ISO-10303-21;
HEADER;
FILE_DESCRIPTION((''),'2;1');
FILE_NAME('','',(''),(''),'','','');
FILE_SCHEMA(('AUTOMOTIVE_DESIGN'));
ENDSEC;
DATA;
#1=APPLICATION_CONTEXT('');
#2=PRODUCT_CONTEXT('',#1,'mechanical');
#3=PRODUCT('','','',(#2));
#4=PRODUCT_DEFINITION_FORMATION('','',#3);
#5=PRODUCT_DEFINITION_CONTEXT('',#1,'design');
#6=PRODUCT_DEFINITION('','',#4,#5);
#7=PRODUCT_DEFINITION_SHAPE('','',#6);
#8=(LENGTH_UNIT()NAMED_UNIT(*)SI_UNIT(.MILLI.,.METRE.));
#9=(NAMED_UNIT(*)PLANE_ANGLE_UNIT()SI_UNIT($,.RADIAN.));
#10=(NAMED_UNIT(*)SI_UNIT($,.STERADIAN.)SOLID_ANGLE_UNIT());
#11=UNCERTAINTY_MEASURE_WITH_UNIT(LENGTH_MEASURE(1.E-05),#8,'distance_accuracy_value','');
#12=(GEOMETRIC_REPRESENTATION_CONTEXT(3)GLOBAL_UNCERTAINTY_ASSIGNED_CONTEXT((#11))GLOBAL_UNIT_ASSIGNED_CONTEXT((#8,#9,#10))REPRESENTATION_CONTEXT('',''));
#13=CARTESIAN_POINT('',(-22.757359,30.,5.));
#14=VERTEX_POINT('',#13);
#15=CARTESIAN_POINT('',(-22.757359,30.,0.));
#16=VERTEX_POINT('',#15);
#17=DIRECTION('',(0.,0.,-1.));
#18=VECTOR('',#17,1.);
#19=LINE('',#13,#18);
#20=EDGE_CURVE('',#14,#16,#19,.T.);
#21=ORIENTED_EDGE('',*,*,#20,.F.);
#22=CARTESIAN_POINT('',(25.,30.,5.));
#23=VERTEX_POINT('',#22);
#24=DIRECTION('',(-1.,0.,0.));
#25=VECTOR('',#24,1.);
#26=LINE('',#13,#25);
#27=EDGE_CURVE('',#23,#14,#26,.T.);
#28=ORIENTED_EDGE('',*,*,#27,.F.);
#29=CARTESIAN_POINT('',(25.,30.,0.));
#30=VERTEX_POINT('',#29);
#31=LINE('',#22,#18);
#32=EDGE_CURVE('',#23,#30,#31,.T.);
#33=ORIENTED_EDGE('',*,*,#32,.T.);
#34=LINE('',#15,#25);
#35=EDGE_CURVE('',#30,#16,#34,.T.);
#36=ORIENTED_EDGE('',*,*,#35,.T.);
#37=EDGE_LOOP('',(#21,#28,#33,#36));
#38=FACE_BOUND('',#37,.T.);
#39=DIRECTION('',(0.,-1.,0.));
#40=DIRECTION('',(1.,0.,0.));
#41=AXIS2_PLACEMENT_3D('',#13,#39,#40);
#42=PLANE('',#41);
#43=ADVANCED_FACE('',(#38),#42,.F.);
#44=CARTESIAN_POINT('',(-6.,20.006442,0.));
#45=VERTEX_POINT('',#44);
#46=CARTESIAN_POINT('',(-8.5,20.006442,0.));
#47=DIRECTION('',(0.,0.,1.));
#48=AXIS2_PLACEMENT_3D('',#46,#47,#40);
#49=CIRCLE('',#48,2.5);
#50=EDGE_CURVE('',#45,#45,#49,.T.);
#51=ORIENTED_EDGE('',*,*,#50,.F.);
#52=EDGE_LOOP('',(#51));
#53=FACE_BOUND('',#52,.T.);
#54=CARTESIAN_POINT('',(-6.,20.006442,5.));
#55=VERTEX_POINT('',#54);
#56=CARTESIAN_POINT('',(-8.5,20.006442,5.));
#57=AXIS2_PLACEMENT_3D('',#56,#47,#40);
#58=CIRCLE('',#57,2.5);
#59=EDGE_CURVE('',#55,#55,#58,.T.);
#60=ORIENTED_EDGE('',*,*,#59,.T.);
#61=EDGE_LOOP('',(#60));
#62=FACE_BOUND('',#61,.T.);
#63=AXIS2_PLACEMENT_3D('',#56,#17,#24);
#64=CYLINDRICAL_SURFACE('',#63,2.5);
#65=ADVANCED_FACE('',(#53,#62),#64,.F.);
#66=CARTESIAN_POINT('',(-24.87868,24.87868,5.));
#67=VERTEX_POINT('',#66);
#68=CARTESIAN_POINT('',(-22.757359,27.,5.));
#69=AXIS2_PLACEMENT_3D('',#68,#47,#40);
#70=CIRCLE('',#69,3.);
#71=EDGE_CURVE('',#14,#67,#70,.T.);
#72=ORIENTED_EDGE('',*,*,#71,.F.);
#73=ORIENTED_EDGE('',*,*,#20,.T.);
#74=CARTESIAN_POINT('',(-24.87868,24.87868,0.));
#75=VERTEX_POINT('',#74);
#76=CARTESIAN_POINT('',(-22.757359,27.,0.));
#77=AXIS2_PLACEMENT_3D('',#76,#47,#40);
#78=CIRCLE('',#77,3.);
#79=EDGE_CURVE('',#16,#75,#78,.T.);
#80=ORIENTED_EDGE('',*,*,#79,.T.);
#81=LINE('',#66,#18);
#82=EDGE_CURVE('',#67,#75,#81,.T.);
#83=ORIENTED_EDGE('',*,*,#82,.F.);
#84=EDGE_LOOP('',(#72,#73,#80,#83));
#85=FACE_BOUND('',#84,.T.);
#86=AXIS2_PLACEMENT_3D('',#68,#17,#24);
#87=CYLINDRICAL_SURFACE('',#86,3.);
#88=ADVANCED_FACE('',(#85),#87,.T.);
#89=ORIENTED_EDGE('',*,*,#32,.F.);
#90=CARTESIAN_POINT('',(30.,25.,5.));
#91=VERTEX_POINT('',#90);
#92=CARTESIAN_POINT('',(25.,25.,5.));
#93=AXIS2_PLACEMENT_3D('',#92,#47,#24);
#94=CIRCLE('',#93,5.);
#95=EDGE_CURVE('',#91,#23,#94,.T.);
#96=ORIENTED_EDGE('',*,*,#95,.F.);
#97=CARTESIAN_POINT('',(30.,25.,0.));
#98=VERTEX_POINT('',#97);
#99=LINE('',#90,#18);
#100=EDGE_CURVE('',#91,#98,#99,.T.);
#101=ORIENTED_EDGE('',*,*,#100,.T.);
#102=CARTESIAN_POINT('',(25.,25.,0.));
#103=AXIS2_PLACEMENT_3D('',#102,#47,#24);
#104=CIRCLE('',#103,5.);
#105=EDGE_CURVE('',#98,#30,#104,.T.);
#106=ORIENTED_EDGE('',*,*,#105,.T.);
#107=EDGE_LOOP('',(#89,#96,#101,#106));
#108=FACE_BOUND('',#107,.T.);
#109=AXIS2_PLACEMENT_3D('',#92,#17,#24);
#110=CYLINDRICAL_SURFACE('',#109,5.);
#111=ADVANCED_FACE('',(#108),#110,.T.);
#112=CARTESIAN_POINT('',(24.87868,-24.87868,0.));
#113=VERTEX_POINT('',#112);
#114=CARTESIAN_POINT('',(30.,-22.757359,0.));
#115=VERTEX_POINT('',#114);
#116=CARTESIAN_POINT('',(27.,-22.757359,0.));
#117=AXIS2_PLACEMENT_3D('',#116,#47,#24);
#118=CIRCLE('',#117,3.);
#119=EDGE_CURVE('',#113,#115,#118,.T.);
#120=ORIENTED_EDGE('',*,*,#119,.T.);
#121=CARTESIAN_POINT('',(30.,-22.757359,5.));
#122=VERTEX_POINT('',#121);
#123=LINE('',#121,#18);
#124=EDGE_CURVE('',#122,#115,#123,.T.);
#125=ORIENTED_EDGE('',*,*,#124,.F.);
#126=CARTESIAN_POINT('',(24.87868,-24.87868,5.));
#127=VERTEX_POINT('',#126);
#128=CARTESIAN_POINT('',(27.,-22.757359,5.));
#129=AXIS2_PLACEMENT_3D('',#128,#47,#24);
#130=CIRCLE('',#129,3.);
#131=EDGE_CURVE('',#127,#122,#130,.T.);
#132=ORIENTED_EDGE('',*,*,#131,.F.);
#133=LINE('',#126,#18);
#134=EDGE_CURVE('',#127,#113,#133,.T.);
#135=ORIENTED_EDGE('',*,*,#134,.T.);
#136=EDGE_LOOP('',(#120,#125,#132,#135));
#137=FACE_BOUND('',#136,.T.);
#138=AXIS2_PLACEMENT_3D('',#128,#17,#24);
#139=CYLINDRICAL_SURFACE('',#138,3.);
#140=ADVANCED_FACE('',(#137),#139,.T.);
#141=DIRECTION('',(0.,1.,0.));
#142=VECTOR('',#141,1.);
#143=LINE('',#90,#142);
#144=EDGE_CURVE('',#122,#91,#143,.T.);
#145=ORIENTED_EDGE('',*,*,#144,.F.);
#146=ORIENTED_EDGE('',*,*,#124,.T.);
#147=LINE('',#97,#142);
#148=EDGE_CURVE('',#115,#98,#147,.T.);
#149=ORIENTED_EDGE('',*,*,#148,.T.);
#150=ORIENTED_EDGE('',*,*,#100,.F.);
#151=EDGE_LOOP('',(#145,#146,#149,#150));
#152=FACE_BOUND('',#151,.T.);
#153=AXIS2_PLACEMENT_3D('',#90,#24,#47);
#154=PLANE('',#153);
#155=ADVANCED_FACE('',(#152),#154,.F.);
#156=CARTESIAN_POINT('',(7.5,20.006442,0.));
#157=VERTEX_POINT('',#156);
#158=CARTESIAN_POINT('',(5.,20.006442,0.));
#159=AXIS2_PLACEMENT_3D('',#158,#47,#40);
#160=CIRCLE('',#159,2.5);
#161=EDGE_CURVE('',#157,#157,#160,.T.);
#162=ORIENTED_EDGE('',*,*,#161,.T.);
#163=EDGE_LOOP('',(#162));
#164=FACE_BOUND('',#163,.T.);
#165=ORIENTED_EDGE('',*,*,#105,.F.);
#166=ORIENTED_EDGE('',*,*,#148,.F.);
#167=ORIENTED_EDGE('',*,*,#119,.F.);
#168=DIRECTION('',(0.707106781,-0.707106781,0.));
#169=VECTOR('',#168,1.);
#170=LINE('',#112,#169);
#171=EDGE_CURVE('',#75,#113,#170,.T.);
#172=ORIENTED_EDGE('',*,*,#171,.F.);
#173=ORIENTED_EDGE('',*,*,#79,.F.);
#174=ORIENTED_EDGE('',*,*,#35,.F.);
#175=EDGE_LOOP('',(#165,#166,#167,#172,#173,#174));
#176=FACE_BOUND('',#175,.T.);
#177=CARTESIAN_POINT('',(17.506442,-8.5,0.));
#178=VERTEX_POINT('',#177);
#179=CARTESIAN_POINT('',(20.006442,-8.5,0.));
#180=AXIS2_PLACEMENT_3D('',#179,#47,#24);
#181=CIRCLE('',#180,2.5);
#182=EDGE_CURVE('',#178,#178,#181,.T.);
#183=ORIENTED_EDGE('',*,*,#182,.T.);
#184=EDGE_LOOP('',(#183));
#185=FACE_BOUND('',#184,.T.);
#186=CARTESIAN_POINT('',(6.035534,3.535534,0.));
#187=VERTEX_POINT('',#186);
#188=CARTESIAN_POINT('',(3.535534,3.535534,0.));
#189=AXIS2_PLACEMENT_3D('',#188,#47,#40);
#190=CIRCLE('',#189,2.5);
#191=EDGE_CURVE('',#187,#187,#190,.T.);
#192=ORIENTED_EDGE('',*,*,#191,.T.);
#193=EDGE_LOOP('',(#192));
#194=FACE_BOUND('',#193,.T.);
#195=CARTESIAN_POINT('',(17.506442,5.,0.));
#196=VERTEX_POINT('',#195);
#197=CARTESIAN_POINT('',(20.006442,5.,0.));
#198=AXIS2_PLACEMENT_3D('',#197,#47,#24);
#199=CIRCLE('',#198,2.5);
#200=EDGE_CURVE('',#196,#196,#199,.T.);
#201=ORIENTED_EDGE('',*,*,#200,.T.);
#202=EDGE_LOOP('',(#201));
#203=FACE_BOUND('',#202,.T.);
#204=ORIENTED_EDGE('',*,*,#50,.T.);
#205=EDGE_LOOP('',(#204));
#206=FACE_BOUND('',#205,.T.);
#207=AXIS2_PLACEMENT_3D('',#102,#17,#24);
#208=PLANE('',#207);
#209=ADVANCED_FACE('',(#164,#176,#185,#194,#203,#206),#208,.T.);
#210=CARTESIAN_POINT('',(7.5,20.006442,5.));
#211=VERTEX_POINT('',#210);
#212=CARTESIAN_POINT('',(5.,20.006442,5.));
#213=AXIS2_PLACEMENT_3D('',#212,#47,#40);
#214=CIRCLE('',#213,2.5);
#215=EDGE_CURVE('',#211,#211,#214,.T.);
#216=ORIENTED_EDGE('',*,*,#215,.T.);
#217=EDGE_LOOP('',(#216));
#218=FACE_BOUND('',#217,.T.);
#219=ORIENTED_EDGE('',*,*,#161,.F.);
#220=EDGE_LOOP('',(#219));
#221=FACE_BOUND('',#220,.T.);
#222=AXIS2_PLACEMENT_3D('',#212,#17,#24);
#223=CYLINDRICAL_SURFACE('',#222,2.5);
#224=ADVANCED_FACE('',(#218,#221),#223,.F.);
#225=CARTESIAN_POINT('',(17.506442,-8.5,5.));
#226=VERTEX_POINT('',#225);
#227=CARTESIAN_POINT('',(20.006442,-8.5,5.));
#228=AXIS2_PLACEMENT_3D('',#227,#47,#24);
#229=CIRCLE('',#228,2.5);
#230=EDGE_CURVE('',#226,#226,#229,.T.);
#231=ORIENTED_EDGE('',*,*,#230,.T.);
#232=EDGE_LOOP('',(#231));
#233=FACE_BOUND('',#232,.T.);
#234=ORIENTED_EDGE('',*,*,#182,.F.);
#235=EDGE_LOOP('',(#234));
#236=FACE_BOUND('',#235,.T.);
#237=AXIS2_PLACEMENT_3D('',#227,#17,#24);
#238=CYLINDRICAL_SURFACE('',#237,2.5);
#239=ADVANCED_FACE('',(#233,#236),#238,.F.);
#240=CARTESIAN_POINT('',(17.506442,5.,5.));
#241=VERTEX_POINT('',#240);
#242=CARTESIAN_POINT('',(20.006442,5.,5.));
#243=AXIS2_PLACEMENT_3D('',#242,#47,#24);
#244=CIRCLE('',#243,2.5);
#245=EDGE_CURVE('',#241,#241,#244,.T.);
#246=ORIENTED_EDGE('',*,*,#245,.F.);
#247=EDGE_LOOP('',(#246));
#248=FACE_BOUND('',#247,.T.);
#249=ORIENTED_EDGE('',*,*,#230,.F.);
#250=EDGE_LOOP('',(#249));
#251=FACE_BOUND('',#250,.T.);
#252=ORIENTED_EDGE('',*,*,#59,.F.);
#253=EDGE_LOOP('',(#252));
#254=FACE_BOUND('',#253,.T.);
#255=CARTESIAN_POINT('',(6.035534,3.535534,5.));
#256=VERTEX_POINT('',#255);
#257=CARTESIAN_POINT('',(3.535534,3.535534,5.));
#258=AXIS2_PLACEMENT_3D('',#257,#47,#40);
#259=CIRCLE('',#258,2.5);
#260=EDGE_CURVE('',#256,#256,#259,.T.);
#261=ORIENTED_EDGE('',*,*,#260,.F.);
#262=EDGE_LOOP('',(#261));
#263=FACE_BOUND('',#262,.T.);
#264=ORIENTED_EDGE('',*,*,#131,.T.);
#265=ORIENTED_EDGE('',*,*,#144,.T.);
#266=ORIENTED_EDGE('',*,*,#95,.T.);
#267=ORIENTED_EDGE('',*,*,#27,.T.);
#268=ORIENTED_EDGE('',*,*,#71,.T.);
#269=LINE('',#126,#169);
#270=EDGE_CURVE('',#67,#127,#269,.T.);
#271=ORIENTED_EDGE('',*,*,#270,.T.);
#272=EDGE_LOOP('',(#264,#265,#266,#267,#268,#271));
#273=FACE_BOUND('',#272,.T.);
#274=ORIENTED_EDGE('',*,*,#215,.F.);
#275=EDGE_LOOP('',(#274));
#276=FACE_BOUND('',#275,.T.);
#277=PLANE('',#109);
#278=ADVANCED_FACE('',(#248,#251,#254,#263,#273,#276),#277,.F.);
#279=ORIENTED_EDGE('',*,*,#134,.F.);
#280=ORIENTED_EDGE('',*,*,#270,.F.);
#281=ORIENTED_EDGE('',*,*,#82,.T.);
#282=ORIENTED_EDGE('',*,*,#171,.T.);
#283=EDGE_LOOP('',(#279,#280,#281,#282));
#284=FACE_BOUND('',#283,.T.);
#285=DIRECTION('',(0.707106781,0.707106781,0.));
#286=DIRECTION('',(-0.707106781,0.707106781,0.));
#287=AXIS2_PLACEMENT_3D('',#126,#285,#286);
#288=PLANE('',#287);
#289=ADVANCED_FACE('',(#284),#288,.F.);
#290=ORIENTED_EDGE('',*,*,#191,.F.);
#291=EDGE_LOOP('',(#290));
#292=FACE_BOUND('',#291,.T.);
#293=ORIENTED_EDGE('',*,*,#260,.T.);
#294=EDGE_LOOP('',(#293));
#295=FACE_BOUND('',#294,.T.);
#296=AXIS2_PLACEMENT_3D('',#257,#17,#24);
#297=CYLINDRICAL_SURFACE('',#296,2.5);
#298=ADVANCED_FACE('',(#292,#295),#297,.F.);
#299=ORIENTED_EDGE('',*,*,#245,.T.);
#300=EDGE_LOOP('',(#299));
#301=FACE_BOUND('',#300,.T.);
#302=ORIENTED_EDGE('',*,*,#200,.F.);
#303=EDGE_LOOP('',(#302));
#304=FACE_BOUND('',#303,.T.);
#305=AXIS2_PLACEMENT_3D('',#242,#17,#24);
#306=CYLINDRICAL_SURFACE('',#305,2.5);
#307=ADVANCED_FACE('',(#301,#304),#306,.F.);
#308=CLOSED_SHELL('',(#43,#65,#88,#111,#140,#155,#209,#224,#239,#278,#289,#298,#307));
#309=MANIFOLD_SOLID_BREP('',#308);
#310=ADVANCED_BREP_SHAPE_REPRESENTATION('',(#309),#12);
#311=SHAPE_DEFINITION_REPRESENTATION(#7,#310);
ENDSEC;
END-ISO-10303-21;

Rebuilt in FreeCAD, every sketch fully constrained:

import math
import FreeCAD as App
import Part
import Sketcher

doc = App.newDocument("Part")
body = doc.addObject("PartDesign::Body", "Body")

# Sketch on XY plane
sketch1 = body.newObject("Sketcher::SketchObject", "Sketch")
sketch1.AttachmentSupport = (doc.getObject("XY_Plane"), [""])
sketch1.MapMode = "FlatFace"
sketch1.addGeometry([
    Part.LineSegment(App.Vector(25, 30, 0), App.Vector(-22.8, 30, 0)),  # 0
    Part.ArcOfCircle(Part.Circle(App.Vector(-22.8, 27, 0), App.Vector(0, 0, 1), 3), math.radians(90), math.radians(225)),  # 1
    Part.LineSegment(App.Vector(-24.9, 24.9, 0), App.Vector(24.9, -24.9, 0)),  # 2
    Part.ArcOfCircle(Part.Circle(App.Vector(27, -22.8, 0), App.Vector(0, 0, 1), 3), math.radians(-135), math.radians(0)),  # 3
    Part.LineSegment(App.Vector(30, -22.8, 0), App.Vector(30, 25, 0)),  # 4
    Part.ArcOfCircle(Part.Circle(App.Vector(25, 25, 0), App.Vector(0, 0, 1), 5), math.radians(0), math.radians(90)),  # 5
    Part.Circle(App.Vector(20, -8.5, 0), App.Vector(0, 0, 1), 2.5),  # 6
    Part.Circle(App.Vector(20, 5, 0), App.Vector(0, 0, 1), 2.5),  # 7
    Part.Circle(App.Vector(3.5, 3.5, 0), App.Vector(0, 0, 1), 2.5),  # 8
    Part.Circle(App.Vector(5, 20, 0), App.Vector(0, 0, 1), 2.5),  # 9
    Part.Circle(App.Vector(-8.5, 20, 0), App.Vector(0, 0, 1), 2.5),  # 10
], False)
sketch1.addConstraint([
    Sketcher.Constraint("Tangent", 0, 2, 1, 1),
    Sketcher.Constraint("Tangent", 1, 2, 2, 1),
    Sketcher.Constraint("Tangent", 2, 2, 3, 1),
    Sketcher.Constraint("Tangent", 3, 2, 4, 1),
    Sketcher.Constraint("Tangent", 4, 2, 5, 1),
    Sketcher.Constraint("Tangent", 5, 2, 0, 1),
    Sketcher.Constraint("Horizontal", 0),
    Sketcher.Constraint("Vertical", 4),
    Sketcher.Constraint("Equal", 1, 3),
    Sketcher.Constraint("Equal", 6, 7),
    Sketcher.Constraint("Equal", 7, 8),
    Sketcher.Constraint("Equal", 8, 9),
    Sketcher.Constraint("Equal", 9, 10),
    Sketcher.Constraint("Symmetric", 1, 2, 2, 2, -1, 1),
    Sketcher.Constraint("Horizontal", 9, 3, 10, 3),
    Sketcher.Constraint("Vertical", 6, 3, 7, 3),
    Sketcher.Constraint("Equal", 0, 4),
    Sketcher.Constraint("Diameter", 6, 5.0),
    Sketcher.Constraint("Radius", 1, 3.0),
    Sketcher.Constraint("Radius", 5, 5.0),
    Sketcher.Constraint("DistanceY", -1, 1, 1, 3, 27.0),
    Sketcher.Constraint("DistanceY", -1, 1, 7, 3, 5.0),
    Sketcher.Constraint("DistanceX", -1, 1, 9, 3, 5.0),
    Sketcher.Constraint("DistanceY", 6, 3, -1, 1, 8.5),
    Sketcher.Constraint("DistanceX", 10, 3, -1, 1, 8.5),
    Sketcher.Constraint("DistanceX", 1, 3, 6, 3, 42.763802),
    Sketcher.Constraint("DistanceX", 8, 3, 7, 3, 16.470908),
    Sketcher.Constraint("DistanceY", 8, 3, 9, 3, 16.470908),
    Sketcher.Constraint("DistanceY", 2, 2, 9, 3, 44.885122),
])
pad1 = body.newObject("PartDesign::Pad", "Pad")
pad1.Profile = sketch1
pad1.Length = 5

doc.recompute()
